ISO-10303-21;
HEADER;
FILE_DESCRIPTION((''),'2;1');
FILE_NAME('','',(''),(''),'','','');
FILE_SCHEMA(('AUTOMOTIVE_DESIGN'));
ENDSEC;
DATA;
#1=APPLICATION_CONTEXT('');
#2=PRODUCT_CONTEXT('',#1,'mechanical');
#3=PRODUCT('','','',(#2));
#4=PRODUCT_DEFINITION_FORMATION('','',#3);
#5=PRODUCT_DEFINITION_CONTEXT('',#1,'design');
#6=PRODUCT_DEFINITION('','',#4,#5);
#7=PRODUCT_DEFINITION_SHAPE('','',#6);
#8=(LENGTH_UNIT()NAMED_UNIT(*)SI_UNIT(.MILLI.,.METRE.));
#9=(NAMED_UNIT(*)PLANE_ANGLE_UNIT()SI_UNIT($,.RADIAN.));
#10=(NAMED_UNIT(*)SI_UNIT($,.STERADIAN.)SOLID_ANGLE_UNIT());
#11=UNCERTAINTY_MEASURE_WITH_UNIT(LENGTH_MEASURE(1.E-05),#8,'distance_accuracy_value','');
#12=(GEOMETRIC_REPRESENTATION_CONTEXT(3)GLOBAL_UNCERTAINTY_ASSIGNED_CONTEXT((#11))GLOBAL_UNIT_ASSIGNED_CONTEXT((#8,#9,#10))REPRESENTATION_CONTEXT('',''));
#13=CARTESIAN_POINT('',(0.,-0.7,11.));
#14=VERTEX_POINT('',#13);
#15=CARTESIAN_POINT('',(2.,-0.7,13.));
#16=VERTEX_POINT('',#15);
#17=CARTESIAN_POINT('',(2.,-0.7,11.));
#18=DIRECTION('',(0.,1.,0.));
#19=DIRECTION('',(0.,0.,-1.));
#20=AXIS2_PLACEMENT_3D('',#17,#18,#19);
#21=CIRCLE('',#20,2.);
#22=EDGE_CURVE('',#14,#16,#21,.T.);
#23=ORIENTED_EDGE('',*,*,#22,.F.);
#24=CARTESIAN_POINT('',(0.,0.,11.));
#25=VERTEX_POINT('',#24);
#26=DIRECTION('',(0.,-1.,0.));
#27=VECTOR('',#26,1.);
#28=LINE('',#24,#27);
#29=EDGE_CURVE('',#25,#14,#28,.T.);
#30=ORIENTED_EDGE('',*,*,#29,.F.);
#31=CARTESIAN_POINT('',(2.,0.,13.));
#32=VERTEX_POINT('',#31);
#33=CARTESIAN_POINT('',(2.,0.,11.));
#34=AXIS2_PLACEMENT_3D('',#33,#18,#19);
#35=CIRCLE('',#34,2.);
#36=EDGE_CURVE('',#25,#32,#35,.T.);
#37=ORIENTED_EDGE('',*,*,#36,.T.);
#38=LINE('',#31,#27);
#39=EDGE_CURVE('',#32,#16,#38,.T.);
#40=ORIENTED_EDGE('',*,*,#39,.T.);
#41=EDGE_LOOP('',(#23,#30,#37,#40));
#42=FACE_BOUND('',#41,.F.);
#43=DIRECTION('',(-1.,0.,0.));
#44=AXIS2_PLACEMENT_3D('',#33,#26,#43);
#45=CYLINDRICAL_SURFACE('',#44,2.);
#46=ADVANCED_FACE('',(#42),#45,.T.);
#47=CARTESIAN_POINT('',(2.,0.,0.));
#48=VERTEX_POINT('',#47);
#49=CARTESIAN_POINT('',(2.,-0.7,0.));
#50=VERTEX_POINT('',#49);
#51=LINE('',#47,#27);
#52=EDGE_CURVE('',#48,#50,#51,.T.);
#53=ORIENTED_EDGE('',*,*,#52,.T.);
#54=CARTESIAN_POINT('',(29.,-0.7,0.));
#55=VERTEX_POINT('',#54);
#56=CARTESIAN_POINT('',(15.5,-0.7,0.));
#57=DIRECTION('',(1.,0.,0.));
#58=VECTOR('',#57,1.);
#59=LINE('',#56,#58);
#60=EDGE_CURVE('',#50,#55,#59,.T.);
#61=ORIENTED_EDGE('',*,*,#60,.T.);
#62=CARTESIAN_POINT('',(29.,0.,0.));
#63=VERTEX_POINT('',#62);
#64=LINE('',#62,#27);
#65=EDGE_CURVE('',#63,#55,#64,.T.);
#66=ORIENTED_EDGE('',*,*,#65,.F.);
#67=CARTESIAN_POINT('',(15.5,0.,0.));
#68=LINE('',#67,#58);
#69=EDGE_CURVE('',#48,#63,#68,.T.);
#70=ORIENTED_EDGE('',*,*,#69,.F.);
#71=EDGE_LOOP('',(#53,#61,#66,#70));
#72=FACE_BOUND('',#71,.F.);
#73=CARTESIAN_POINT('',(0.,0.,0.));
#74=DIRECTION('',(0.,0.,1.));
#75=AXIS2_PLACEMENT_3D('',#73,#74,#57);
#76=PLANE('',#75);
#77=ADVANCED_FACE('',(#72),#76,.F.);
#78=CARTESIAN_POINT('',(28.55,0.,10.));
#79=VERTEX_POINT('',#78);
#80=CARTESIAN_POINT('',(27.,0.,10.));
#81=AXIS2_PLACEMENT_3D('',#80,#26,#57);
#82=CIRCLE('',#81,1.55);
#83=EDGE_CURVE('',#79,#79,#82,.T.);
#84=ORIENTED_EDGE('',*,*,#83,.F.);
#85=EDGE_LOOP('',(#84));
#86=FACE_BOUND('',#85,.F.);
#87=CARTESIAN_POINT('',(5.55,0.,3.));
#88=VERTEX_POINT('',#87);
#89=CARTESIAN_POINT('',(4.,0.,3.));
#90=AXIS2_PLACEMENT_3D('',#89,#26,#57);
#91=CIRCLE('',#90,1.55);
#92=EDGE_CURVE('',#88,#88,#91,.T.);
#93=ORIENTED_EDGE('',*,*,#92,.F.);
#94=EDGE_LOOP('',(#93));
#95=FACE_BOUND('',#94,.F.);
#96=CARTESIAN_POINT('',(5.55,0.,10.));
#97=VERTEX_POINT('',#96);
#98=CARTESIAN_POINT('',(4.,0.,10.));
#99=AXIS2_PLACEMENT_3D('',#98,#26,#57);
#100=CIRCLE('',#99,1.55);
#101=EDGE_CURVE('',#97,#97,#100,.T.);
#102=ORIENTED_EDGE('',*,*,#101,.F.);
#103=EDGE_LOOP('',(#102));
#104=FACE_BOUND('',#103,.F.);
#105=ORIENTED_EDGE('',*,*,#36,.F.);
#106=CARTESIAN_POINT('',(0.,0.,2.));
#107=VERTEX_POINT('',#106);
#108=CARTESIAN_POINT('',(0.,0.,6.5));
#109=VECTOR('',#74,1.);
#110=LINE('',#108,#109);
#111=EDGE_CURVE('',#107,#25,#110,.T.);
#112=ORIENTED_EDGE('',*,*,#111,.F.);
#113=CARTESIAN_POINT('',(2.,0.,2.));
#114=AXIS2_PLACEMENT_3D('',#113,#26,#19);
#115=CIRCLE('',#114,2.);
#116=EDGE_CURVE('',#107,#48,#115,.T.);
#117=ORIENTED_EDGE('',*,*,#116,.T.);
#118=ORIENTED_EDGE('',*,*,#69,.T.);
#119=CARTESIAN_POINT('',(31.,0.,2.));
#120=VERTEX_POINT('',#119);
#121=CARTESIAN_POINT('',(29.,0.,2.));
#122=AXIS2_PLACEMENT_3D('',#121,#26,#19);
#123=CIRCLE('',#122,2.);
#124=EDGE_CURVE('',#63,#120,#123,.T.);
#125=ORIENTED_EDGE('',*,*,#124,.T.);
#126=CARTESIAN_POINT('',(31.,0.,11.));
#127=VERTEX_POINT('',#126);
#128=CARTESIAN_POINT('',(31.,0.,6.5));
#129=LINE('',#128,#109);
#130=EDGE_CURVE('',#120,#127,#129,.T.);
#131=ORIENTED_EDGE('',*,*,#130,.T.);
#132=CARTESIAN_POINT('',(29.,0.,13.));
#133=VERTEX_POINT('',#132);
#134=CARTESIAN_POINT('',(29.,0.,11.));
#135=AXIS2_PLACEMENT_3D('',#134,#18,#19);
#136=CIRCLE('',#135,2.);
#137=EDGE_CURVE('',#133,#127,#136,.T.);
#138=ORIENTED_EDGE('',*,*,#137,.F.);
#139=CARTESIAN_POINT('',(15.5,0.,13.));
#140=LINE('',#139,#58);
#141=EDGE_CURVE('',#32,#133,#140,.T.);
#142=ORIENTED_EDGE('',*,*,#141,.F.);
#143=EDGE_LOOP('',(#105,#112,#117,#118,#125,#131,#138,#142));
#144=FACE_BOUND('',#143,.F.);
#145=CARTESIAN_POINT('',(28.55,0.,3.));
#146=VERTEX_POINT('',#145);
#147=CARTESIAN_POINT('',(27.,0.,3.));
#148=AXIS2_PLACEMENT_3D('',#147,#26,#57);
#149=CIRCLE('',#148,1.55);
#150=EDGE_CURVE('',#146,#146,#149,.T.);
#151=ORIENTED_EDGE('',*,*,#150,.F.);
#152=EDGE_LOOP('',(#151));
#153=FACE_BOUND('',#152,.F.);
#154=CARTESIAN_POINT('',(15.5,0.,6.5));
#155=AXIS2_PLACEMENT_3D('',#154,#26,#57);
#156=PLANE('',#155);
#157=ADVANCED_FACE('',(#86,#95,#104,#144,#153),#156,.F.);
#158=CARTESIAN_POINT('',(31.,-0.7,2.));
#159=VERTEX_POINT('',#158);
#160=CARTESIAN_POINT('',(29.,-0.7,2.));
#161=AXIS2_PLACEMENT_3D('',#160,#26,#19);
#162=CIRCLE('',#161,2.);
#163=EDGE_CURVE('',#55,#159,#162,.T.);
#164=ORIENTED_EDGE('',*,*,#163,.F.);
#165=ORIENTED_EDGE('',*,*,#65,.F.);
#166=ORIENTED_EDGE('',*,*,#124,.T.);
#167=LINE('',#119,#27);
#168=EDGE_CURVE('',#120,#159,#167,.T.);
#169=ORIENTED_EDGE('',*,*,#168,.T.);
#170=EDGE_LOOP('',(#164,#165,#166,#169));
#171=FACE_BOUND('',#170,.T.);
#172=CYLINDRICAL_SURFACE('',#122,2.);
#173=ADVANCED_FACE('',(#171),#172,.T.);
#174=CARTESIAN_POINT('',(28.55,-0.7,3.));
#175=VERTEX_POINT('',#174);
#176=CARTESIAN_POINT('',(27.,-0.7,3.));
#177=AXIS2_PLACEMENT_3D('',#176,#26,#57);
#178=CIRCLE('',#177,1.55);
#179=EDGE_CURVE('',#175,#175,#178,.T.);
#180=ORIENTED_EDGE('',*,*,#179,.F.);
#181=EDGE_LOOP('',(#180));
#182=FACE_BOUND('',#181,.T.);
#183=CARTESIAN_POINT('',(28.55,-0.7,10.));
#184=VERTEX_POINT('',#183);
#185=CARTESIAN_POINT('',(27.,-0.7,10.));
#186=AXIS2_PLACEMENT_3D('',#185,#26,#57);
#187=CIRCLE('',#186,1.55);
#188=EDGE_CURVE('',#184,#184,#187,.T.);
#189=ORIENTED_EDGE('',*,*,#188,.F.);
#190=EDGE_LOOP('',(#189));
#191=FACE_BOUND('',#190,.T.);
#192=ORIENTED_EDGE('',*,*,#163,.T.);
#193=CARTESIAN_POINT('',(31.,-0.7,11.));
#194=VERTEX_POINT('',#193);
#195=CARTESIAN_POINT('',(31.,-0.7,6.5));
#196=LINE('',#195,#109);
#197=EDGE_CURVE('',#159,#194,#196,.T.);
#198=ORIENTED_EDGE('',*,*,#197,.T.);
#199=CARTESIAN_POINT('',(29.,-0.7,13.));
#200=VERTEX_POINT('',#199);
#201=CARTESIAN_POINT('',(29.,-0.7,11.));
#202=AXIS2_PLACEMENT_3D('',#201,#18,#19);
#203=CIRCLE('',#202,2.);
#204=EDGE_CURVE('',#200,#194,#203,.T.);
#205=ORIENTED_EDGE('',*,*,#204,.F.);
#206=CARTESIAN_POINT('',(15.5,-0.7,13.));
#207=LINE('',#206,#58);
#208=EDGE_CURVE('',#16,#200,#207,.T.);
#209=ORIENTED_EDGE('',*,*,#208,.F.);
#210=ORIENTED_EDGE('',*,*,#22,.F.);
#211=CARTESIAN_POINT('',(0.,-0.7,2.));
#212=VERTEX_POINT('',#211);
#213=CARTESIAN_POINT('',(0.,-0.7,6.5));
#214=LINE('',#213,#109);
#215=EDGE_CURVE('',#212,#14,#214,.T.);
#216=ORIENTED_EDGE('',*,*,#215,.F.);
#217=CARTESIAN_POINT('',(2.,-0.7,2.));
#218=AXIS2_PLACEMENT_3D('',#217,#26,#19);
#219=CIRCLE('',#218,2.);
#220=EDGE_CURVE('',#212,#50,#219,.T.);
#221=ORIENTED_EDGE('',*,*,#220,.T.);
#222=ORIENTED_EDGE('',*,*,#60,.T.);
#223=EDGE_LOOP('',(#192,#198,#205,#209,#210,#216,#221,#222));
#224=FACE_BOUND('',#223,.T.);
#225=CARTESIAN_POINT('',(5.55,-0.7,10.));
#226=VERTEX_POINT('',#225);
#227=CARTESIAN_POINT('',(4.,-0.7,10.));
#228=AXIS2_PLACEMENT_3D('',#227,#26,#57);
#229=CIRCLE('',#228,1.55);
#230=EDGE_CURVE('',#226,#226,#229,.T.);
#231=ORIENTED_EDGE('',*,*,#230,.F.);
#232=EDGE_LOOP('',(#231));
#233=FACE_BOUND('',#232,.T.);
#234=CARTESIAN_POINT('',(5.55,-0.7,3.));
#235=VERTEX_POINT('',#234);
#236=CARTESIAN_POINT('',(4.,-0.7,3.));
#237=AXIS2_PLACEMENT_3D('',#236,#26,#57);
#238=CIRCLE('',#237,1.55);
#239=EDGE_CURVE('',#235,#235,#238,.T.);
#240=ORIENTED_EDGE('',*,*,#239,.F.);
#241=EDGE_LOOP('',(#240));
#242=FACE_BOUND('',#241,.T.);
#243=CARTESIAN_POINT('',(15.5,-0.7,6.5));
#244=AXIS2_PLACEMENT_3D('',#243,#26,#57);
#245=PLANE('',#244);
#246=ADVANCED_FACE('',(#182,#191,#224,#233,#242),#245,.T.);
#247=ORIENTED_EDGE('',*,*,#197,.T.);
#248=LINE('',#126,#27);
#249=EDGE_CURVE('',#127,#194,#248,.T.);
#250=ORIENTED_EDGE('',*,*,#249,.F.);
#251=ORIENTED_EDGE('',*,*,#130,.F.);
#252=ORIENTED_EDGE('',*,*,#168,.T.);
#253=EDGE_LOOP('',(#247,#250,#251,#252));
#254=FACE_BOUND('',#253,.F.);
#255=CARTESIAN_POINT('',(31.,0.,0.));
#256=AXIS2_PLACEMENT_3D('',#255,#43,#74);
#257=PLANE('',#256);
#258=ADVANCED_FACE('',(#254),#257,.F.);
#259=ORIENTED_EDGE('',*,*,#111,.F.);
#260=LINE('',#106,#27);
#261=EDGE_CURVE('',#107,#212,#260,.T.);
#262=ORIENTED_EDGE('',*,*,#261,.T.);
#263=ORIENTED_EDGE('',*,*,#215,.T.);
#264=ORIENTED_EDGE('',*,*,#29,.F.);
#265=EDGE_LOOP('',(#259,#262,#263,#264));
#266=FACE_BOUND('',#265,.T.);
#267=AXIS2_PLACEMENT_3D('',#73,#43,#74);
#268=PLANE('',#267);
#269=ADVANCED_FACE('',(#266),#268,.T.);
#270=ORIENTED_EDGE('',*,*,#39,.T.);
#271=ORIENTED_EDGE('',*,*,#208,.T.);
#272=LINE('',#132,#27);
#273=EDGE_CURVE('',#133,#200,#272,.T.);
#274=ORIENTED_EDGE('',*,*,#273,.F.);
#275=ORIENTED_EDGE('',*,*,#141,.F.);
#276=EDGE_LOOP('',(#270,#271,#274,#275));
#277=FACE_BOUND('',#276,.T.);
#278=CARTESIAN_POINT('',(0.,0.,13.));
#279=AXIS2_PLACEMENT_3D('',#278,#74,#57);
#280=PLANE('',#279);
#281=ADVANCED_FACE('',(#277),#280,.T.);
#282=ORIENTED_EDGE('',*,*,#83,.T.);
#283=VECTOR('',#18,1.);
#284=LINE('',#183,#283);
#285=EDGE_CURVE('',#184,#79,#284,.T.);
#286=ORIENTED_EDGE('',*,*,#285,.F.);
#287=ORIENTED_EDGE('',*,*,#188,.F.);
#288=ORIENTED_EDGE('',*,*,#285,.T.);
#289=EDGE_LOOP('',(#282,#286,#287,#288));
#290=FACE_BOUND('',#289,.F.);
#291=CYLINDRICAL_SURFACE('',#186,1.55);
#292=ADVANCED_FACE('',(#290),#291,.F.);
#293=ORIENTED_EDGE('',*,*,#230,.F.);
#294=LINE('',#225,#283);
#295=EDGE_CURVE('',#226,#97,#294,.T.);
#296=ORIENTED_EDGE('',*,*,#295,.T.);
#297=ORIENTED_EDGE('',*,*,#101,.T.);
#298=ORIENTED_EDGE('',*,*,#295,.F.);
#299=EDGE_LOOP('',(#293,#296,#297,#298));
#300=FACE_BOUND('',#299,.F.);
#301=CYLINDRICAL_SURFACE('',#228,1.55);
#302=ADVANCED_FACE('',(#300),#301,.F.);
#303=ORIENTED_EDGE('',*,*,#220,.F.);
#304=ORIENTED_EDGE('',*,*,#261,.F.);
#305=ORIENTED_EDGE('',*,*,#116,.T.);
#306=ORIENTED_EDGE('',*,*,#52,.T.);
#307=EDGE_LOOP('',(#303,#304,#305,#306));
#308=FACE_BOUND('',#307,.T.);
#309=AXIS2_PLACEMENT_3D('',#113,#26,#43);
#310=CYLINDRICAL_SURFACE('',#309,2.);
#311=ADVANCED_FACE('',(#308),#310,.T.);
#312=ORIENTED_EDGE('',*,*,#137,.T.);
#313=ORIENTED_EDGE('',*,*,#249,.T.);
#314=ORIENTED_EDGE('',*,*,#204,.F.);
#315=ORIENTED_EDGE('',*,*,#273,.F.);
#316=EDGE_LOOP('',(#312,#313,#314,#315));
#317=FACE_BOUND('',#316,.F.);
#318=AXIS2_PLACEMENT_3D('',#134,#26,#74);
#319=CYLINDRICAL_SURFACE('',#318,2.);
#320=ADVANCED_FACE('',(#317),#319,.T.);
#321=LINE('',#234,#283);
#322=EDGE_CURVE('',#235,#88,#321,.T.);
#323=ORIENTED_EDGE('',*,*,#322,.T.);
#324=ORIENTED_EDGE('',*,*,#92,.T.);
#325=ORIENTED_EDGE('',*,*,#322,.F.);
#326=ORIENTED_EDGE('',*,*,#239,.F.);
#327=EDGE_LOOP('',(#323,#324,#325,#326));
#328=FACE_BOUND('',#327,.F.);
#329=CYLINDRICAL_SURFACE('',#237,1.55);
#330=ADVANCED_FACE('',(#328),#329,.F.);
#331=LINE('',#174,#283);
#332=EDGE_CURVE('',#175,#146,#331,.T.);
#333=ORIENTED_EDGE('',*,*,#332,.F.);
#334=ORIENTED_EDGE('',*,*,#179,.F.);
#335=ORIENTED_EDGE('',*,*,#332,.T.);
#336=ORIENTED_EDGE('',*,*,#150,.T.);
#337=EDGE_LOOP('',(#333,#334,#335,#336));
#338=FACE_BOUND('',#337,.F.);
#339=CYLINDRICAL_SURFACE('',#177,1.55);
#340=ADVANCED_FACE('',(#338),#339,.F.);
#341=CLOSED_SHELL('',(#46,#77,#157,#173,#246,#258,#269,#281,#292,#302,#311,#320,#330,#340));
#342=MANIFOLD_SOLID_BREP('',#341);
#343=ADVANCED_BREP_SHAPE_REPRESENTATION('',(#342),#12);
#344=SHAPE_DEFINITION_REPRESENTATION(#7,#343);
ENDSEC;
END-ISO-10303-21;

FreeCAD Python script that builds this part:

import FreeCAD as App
import Part
import Sketcher
from FreeCAD import Vector


def edges_at(feature, points):
    """Names of the edges that pass closest to the given points."""
    edges = feature.Shape.Edges
    near = lambda p: min(range(len(edges)), key=lambda i: edges[i].distToShape(Part.Vertex(*p))[0])
    return sorted({f"Edge{near(p) + 1}" for p in points})


def add_polygon(sketch, points):
    """Adds a closed chain of lines whose ends are joined by coincident constraints."""
    first, n = sketch.GeometryCount, len(points)
    for a, b in zip(points, points[1:] + points[:1]):
        sketch.addGeometry(Part.LineSegment(App.Vector(*a, 0), App.Vector(*b, 0)), False)
    for i in range(n):
        sketch.addConstraint(Sketcher.Constraint("Coincident", first + i, 2, first + (i + 1) % n, 1))

doc = App.newDocument("Part")
body = doc.addObject("PartDesign::Body", "Body")

# Sketch on XZ plane
sketch1 = doc.addObject("Sketcher::SketchObject", "Sketch")
body.addObject(sketch1)
sketch1.AttachmentSupport = (doc.XZ_Plane, [""])
sketch1.MapMode = "FlatFace"
add_polygon(sketch1, [(0, 13), (0, 0), (31, 0), (31, 13)])  # lines 0-3
sketch1.addConstraint([
    Sketcher.Constraint("Vertical", 0),
    Sketcher.Constraint("Horizontal", 1),
    Sketcher.Constraint("Vertical", 2),
    Sketcher.Constraint("Horizontal", 3),
    Sketcher.Constraint("Coincident", 0, 2, -1, 1),
    Sketcher.Constraint("DistanceX", 1, 1, 1, 2, 31.0),
    Sketcher.Constraint("DistanceY", 0, 2, 0, 1, 13.0),
])
pad1 = doc.addObject("PartDesign::Pad", "Pad")
body.addObject(pad1)
pad1.Profile = sketch1
pad1.Length = 0.7

# Sketch on XZ plane
sketch2 = doc.addObject("Sketcher::SketchObject", "Sketch001")
body.addObject(sketch2)
sketch2.AttachmentSupport = (doc.XZ_Plane, [""])
sketch2.MapMode = "FlatFace"
sketch2.AttachmentOffset = App.Placement(Vector(0, 0, 0.7), App.Rotation())
sketch2.addGeometry([
    Part.Circle(Vector(4, 10, 0), Vector(0, 0, 1), 1.6),
    Part.Circle(Vector(4, 3, 0), Vector(0, 0, 1), 1.6),
    Part.Circle(Vector(27, 10, 0), Vector(0, 0, 1), 1.6),
    Part.Circle(Vector(27, 3, 0), Vector(0, 0, 1), 1.6),
], False)
sketch2.addConstraint([
    Sketcher.Constraint("Equal", 0, 1),
    Sketcher.Constraint("Equal", 1, 2),
    Sketcher.Constraint("Equal", 2, 3),
    Sketcher.Constraint("Horizontal", 0, 3, 2, 3),
    Sketcher.Constraint("Horizontal", 1, 3, 3, 3),
    Sketcher.Constraint("Vertical", 0, 3, 1, 3),
    Sketcher.Constraint("Vertical", 2, 3, 3, 3),
    Sketcher.Constraint("Diameter", 0, 3.1),
    Sketcher.Constraint("DistanceX", -1, 1, 0, 3, 4.0),
    Sketcher.Constraint("DistanceY", -1, 1, 0, 3, 10.0),
    Sketcher.Constraint("DistanceY", -1, 1, 1, 3, 3.0),
    Sketcher.Constraint("DistanceX", -1, 1, 2, 3, 27.0),
])
pocket1 = doc.addObject("PartDesign::Pocket", "Pocket")
body.addObject(pocket1)
pocket1.Profile = sketch2
pocket1.Length = 25
doc.recompute()

fillet = doc.addObject("PartDesign::Fillet", "Fillet")
body.addObject(fillet)
fillet.Base = (pocket1, edges_at(pocket1, [
    (31, -0.35, 13),
    (31, -0.35, 0),
    (0, -0.35, 0),
    (0, -0.35, 13),
]))
fillet.Radius = 2

doc.recompute()
